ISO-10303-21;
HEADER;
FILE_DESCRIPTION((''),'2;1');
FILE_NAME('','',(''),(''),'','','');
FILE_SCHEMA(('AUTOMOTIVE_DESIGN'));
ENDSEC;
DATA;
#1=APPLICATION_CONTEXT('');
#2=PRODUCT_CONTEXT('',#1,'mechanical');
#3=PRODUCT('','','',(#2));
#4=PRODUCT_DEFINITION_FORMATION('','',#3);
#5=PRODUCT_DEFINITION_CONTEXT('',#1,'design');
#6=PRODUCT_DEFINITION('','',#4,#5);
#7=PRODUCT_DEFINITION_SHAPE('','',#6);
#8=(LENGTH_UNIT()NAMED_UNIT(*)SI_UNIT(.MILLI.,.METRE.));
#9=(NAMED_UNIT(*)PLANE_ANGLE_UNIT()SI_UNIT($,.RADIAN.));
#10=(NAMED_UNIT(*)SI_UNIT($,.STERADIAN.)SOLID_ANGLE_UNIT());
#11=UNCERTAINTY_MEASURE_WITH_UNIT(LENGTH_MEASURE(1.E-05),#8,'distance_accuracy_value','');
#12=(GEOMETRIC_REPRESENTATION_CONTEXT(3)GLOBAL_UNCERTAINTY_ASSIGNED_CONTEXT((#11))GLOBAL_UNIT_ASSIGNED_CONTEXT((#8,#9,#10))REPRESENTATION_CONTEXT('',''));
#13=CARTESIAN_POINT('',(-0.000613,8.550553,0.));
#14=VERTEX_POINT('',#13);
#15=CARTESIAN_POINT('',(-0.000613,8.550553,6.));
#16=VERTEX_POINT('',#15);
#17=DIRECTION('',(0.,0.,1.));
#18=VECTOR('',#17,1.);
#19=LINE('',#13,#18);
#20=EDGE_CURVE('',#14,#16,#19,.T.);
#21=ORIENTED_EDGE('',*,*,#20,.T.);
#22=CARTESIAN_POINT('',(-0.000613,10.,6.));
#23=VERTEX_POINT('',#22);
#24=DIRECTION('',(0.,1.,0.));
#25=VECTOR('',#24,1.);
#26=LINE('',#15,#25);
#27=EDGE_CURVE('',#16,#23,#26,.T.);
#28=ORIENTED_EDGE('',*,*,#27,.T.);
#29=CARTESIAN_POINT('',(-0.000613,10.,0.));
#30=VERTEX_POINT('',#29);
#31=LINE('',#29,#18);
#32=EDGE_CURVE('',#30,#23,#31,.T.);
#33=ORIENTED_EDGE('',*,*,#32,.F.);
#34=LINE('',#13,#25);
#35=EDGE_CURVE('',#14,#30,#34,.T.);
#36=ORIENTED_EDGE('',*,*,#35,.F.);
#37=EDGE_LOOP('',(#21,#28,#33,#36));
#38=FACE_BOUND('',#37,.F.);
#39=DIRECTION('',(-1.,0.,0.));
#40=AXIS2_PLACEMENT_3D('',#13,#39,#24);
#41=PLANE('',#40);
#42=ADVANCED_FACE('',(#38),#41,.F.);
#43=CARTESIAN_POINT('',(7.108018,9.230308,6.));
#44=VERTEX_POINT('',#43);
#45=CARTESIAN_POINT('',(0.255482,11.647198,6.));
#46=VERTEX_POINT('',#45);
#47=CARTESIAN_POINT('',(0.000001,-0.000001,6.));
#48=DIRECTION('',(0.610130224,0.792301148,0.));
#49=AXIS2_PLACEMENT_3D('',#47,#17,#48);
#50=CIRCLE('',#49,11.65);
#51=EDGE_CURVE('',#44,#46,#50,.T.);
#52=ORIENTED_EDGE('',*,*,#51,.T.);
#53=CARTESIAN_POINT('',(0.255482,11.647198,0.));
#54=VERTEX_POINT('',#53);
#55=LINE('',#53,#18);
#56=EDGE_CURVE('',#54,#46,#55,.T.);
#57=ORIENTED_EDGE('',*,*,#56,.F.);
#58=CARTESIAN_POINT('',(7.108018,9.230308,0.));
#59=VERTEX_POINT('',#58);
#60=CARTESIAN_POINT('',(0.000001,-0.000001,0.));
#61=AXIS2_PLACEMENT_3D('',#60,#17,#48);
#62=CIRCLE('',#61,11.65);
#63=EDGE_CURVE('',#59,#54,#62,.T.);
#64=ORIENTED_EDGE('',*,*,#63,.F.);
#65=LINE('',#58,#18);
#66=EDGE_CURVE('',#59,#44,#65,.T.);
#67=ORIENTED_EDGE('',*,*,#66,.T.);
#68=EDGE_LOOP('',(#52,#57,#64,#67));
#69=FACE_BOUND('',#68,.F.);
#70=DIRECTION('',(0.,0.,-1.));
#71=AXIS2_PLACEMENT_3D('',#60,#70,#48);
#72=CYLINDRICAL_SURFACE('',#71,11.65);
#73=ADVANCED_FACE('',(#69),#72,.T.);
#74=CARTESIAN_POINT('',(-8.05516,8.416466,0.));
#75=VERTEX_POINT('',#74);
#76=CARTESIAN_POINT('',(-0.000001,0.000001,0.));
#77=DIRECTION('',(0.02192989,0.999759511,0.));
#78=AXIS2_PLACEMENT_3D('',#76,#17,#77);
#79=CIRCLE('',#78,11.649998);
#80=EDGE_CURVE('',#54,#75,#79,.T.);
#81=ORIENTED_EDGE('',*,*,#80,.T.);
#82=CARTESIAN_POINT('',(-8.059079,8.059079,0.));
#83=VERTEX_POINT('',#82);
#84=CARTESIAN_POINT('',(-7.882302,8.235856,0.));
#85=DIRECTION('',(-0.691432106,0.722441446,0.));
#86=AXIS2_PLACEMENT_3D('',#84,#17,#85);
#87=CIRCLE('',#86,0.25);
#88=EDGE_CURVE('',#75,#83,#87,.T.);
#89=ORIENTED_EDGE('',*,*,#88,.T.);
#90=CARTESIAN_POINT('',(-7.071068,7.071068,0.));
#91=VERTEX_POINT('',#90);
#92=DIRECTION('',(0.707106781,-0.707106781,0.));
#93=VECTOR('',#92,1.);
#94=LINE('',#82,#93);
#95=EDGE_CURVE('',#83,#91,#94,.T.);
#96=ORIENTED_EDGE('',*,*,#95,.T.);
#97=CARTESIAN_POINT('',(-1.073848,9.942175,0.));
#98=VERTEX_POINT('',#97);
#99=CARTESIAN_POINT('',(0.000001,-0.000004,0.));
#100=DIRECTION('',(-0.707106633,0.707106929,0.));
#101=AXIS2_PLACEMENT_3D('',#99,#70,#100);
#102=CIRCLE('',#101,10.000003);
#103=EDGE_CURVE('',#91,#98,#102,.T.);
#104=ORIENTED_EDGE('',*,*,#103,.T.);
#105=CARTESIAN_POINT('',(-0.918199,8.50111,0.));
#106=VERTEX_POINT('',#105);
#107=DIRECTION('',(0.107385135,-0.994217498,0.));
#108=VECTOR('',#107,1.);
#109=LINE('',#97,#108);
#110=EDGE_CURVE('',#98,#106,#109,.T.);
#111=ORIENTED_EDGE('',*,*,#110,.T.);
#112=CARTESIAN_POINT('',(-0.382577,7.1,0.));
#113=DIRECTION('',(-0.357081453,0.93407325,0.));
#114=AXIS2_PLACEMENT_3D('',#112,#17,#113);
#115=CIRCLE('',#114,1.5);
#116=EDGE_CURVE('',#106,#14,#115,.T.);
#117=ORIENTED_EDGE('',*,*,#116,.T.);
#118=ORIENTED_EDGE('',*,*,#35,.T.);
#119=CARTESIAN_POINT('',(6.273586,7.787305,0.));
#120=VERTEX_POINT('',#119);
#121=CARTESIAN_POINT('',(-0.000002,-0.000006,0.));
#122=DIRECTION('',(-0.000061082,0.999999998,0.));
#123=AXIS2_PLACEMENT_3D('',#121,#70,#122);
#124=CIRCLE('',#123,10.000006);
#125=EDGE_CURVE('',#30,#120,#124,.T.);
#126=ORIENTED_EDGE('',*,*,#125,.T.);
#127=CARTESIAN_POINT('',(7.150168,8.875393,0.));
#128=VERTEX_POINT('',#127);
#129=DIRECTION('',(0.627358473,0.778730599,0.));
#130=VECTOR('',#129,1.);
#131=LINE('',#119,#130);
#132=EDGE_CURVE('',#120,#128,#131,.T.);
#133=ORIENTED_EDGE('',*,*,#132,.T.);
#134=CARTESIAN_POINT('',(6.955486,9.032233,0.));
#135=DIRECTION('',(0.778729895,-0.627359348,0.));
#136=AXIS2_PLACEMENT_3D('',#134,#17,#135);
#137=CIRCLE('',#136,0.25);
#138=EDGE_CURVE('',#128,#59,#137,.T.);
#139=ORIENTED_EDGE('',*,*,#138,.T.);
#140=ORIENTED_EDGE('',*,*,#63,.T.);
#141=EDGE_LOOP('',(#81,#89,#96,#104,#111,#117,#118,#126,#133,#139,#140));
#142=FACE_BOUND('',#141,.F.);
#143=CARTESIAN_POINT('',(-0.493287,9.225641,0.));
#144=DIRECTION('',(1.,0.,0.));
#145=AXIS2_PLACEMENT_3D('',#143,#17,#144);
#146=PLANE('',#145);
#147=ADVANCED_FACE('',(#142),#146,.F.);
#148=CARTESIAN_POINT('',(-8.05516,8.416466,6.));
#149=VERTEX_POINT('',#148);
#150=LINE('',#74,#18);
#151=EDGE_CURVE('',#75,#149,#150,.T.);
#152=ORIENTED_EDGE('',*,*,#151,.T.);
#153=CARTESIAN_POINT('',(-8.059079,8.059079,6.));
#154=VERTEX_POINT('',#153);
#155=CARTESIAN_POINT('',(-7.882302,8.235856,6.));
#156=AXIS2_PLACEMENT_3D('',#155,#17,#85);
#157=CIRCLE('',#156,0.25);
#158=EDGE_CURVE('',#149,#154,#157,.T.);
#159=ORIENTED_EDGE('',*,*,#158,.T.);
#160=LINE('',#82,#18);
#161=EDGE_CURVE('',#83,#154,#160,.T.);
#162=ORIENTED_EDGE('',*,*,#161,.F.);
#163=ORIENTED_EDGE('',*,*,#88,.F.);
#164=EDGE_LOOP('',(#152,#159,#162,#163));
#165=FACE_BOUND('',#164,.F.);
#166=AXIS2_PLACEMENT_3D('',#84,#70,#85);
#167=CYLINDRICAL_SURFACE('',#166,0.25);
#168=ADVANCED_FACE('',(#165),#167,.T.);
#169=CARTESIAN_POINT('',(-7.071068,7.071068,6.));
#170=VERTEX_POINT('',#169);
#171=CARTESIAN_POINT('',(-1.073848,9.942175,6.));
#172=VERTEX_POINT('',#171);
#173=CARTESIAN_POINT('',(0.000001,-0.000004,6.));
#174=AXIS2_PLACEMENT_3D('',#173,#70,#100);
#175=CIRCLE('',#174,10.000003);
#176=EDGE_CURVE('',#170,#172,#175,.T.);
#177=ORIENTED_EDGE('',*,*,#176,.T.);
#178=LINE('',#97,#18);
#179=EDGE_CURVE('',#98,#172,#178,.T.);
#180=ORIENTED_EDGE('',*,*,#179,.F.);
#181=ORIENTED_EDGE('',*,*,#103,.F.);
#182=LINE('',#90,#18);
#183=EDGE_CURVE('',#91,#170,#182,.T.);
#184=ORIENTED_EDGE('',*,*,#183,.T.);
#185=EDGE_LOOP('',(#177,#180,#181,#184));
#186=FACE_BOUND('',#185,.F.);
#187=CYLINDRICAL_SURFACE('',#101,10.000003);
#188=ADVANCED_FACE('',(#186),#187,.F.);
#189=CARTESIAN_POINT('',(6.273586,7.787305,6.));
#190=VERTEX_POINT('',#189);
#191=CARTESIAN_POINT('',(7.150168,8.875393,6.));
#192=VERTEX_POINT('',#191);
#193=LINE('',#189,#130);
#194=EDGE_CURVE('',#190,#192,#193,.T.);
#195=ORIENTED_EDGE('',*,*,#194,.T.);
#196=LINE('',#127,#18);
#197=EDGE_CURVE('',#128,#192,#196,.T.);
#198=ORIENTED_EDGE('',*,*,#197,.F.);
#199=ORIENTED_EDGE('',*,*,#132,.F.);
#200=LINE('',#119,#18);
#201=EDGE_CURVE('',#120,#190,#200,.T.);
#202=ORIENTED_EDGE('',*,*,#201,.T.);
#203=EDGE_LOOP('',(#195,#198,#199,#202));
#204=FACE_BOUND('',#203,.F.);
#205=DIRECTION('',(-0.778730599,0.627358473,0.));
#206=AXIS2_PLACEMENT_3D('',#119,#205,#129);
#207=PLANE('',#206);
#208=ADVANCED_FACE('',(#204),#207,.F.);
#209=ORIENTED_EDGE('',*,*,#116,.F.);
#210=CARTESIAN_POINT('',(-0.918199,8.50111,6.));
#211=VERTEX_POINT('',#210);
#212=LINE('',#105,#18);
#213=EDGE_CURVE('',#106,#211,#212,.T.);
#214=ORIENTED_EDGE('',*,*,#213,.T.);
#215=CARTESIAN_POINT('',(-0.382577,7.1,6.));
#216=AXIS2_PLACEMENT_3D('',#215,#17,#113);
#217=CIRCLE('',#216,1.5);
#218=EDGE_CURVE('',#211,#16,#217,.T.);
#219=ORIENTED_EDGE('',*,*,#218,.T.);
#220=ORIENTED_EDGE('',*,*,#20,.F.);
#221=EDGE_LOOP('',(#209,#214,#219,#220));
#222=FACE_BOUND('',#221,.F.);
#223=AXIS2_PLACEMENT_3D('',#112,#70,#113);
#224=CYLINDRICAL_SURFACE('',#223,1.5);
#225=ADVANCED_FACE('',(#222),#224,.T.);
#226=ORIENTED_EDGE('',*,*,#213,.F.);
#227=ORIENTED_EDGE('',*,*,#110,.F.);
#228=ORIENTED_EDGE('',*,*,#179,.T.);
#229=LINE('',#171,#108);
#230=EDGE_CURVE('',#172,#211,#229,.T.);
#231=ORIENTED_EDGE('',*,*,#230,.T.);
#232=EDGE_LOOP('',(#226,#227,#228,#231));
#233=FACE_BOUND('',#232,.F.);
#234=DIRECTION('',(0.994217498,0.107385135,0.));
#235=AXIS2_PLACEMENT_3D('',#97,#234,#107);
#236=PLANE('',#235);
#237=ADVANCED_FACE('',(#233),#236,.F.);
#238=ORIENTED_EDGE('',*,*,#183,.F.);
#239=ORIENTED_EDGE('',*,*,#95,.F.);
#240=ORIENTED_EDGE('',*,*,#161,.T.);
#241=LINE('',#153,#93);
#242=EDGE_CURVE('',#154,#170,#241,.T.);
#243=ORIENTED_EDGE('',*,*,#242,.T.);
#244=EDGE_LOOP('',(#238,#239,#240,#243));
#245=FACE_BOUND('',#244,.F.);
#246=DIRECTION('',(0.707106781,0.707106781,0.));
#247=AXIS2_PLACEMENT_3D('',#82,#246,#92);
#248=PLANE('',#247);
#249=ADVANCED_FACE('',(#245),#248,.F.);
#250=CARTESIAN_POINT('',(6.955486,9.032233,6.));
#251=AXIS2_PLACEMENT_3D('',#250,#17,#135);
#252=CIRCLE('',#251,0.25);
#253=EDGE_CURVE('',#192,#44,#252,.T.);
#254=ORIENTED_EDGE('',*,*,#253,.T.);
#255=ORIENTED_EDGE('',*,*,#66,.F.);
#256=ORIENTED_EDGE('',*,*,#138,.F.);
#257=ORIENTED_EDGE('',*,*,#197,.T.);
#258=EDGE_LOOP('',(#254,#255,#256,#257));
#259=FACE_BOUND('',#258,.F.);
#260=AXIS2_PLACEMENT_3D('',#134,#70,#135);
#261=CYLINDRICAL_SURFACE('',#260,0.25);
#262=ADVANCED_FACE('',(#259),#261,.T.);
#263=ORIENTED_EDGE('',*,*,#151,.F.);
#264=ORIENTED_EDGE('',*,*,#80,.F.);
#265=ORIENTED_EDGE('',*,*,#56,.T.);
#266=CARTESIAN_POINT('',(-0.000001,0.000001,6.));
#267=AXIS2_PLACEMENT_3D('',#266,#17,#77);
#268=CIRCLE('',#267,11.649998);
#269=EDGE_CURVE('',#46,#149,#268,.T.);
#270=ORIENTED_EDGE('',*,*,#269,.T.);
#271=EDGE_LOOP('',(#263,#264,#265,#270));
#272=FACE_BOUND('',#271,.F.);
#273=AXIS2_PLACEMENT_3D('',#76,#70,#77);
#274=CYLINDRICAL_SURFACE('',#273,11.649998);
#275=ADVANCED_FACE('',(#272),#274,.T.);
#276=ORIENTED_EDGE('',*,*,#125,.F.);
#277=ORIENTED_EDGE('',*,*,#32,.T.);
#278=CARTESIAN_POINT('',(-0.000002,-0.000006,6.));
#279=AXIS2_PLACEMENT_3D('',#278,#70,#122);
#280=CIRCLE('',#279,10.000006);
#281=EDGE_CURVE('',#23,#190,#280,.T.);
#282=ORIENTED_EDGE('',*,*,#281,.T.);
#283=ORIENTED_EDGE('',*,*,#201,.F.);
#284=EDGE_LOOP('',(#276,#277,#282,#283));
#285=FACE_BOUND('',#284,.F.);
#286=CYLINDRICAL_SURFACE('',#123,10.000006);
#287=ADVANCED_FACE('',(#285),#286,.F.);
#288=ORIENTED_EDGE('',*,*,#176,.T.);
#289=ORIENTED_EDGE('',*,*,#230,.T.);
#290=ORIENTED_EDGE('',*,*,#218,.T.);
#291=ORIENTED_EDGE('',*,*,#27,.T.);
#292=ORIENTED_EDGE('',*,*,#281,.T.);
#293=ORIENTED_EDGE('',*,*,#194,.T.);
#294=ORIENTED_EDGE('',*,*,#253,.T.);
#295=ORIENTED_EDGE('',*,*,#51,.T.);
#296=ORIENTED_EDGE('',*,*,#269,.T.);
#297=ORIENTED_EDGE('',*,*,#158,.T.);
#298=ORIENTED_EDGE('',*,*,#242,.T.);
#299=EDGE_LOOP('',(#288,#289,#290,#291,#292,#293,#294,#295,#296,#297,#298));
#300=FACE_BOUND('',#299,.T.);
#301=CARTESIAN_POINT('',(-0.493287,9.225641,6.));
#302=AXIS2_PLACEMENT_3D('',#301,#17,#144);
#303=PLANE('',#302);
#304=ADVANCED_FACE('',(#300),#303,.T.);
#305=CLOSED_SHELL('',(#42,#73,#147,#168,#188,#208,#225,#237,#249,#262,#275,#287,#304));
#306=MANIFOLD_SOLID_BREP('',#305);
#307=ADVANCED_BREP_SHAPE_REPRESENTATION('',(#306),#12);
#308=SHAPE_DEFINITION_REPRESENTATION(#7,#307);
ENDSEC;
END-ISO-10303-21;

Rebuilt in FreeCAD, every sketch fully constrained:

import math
import FreeCAD as App
import Part
import Sketcher
from FreeCAD import Vector

doc = App.newDocument("Part")
body = doc.addObject("PartDesign::Body", "Body")

# Sketch on XY plane
sketch1 = body.newObject("Sketcher::SketchObject", "Sketch")
sketch1.AttachmentSupport = (doc.getObject("XY_Plane"), [""])
sketch1.MapMode = "FlatFace"
sketch1.addGeometry(Part.ArcOfCircle(Part.Circle(Vector(-7.882302, 8.235856, 0), Vector(0, 0, 1), 0.25), math.radians(133.74358), math.radians(224.999894)), False)
sketch1.addGeometry(Part.LineSegment(Vector(-8.059079, 8.059079, 0), Vector(-7.071068, 7.071068, 0)), False)
sketch1.addGeometry(Part.ArcOfCircle(Part.Circle(Vector(0.000001, -0.000004, 0), Vector(0, 0, 1), 10.000003), math.radians(96.164585), math.radians(134.999988)), False)
sketch1.addGeometry(Part.LineSegment(Vector(-1.073848, 9.942175, 0), Vector(-0.918199, 8.50111, 0)), False)
sketch1.addGeometry(Part.ArcOfCircle(Part.Circle(Vector(-0.382577, 7.1, 0), Vector(0, 0, 1), 1.5), math.radians(110.921066), math.radians(435.247595)), False)
sketch1.addGeometry(Part.LineSegment(Vector(-0.000613, 8.550553, 0), Vector(-0.000613, 10, 0)), False)
sketch1.addGeometry(Part.ArcOfCircle(Part.Circle(Vector(-0.000002, -0.000006, 0), Vector(0, 0, 1), 10.000006), math.radians(51.1445), math.radians(90.0035)), False)
sketch1.addGeometry(Part.LineSegment(Vector(6.273586, 7.787305, 0), Vector(7.150168, 8.875393, 0)), False)
sketch1.addGeometry(Part.ArcOfCircle(Part.Circle(Vector(6.955486, 9.032233, 0), Vector(0, 0, 1), 0.25), math.radians(-38.855568), math.radians(52.401111)), False)
sketch1.addGeometry(Part.ArcOfCircle(Part.Circle(Vector(0.000001, -0.000001, 0), Vector(0, 0, 1), 11.65), math.radians(52.40108), math.radians(88.743419)), False)
sketch1.addGeometry(Part.ArcOfCircle(Part.Circle(Vector(-0.000001, 0.000001, 0), Vector(0, 0, 1), 11.649998), math.radians(88.743409), math.radians(133.743416)), False)
sketch1.addConstraint(Sketcher.Constraint("Coincident", 0, 2, 1, 1))
sketch1.addConstraint(Sketcher.Constraint("Coincident", 1, 2, 2, 2))
sketch1.addConstraint(Sketcher.Constraint("Coincident", 2, 1, 3, 1))
sketch1.addConstraint(Sketcher.Constraint("Coincident", 3, 2, 4, 1))
sketch1.addConstraint(Sketcher.Constraint("Coincident", 4, 2, 5, 1))
sketch1.addConstraint(Sketcher.Constraint("Coincident", 5, 2, 6, 2))
sketch1.addConstraint(Sketcher.Constraint("Coincident", 6, 1, 7, 1))
sketch1.addConstraint(Sketcher.Constraint("Coincident", 7, 2, 8, 1))
sketch1.addConstraint(Sketcher.Constraint("Coincident", 8, 2, 9, 1))
sketch1.addConstraint(Sketcher.Constraint("Coincident", 9, 2, 10, 1))
sketch1.addConstraint(Sketcher.Constraint("Coincident", 10, 2, 0, 1))
sketch1.addConstraint(Sketcher.Constraint("Vertical", 5))
sketch1.addConstraint(Sketcher.Constraint("Coincident", 2, 3, -1, 1))
sketch1.addConstraint(Sketcher.Constraint("Coincident", 6, 3, -1, 1))
sketch1.addConstraint(Sketcher.Constraint("Coincident", 9, 3, -1, 1))
sketch1.addConstraint(Sketcher.Constraint("Coincident", 10, 3, -1, 1))
sketch1.addConstraint(Sketcher.Constraint("Radius", 4, 1.5))
sketch1.addConstraint(Sketcher.Constraint("Radius", 0, 0.25))
sketch1.addConstraint(Sketcher.Constraint("Radius", 8, 0.25))
sketch1.addConstraint(Sketcher.Constraint("Radius", 9, 11.65))
sketch1.addConstraint(Sketcher.Constraint("DistanceY", -1, 1, 5, 2, 10.0))
sketch1.addConstraint(Sketcher.Constraint("DistanceY", -1, 1, 4, 3, 7.1))
sketch1.addConstraint(Sketcher.Constraint("Radius", 2, 10.000003))
sketch1.addConstraint(Sketcher.Constraint("DistanceX", 0, 3, -1, 1, 7.882302))
sketch1.addConstraint(Sketcher.Constraint("DistanceX", 3, 2, -1, 1, 0.918199))
sketch1.addConstraint(Sketcher.Constraint("DistanceY", -1, 1, 9, 2, 11.647198))
sketch1.addConstraint(Sketcher.Constraint("DistanceX", 4, 2, 8, 3, 6.956099))
sketch1.addConstraint(Sketcher.Constraint("DistanceX", 6, 1, 8, 3, 0.6819))
sketch1.addConstraint(Sketcher.Constraint("Distance", 1, 1.397259))
sketch1.addConstraint(Sketcher.Constraint("Distance", 7, 1.397259))
sketch1.addConstraint(Sketcher.Constraint("DistanceY", 5, 1, 5, 2, 1.449447))
sketch1.addConstraint(Sketcher.Constraint("DistanceX", 1, 2, -1, 1, 7.071068))
sketch1.addConstraint(Sketcher.Constraint("DistanceY", -1, 1, 3, 2, 8.50111))
sketch1.addConstraint(Sketcher.Constraint("DistanceX", -1, 1, 8, 2, 7.108018))
sketch1.addConstraint(Sketcher.Constraint("DistanceX", 10, 2, -1, 1, 8.05516))
sketch1.addConstraint(Sketcher.Constraint("DistanceX", 2, 1, 4, 3, 0.691271))
pad1 = body.newObject("PartDesign::Pad", "Pad")
pad1.Profile = sketch1
pad1.Length = 6

doc.recompute()
